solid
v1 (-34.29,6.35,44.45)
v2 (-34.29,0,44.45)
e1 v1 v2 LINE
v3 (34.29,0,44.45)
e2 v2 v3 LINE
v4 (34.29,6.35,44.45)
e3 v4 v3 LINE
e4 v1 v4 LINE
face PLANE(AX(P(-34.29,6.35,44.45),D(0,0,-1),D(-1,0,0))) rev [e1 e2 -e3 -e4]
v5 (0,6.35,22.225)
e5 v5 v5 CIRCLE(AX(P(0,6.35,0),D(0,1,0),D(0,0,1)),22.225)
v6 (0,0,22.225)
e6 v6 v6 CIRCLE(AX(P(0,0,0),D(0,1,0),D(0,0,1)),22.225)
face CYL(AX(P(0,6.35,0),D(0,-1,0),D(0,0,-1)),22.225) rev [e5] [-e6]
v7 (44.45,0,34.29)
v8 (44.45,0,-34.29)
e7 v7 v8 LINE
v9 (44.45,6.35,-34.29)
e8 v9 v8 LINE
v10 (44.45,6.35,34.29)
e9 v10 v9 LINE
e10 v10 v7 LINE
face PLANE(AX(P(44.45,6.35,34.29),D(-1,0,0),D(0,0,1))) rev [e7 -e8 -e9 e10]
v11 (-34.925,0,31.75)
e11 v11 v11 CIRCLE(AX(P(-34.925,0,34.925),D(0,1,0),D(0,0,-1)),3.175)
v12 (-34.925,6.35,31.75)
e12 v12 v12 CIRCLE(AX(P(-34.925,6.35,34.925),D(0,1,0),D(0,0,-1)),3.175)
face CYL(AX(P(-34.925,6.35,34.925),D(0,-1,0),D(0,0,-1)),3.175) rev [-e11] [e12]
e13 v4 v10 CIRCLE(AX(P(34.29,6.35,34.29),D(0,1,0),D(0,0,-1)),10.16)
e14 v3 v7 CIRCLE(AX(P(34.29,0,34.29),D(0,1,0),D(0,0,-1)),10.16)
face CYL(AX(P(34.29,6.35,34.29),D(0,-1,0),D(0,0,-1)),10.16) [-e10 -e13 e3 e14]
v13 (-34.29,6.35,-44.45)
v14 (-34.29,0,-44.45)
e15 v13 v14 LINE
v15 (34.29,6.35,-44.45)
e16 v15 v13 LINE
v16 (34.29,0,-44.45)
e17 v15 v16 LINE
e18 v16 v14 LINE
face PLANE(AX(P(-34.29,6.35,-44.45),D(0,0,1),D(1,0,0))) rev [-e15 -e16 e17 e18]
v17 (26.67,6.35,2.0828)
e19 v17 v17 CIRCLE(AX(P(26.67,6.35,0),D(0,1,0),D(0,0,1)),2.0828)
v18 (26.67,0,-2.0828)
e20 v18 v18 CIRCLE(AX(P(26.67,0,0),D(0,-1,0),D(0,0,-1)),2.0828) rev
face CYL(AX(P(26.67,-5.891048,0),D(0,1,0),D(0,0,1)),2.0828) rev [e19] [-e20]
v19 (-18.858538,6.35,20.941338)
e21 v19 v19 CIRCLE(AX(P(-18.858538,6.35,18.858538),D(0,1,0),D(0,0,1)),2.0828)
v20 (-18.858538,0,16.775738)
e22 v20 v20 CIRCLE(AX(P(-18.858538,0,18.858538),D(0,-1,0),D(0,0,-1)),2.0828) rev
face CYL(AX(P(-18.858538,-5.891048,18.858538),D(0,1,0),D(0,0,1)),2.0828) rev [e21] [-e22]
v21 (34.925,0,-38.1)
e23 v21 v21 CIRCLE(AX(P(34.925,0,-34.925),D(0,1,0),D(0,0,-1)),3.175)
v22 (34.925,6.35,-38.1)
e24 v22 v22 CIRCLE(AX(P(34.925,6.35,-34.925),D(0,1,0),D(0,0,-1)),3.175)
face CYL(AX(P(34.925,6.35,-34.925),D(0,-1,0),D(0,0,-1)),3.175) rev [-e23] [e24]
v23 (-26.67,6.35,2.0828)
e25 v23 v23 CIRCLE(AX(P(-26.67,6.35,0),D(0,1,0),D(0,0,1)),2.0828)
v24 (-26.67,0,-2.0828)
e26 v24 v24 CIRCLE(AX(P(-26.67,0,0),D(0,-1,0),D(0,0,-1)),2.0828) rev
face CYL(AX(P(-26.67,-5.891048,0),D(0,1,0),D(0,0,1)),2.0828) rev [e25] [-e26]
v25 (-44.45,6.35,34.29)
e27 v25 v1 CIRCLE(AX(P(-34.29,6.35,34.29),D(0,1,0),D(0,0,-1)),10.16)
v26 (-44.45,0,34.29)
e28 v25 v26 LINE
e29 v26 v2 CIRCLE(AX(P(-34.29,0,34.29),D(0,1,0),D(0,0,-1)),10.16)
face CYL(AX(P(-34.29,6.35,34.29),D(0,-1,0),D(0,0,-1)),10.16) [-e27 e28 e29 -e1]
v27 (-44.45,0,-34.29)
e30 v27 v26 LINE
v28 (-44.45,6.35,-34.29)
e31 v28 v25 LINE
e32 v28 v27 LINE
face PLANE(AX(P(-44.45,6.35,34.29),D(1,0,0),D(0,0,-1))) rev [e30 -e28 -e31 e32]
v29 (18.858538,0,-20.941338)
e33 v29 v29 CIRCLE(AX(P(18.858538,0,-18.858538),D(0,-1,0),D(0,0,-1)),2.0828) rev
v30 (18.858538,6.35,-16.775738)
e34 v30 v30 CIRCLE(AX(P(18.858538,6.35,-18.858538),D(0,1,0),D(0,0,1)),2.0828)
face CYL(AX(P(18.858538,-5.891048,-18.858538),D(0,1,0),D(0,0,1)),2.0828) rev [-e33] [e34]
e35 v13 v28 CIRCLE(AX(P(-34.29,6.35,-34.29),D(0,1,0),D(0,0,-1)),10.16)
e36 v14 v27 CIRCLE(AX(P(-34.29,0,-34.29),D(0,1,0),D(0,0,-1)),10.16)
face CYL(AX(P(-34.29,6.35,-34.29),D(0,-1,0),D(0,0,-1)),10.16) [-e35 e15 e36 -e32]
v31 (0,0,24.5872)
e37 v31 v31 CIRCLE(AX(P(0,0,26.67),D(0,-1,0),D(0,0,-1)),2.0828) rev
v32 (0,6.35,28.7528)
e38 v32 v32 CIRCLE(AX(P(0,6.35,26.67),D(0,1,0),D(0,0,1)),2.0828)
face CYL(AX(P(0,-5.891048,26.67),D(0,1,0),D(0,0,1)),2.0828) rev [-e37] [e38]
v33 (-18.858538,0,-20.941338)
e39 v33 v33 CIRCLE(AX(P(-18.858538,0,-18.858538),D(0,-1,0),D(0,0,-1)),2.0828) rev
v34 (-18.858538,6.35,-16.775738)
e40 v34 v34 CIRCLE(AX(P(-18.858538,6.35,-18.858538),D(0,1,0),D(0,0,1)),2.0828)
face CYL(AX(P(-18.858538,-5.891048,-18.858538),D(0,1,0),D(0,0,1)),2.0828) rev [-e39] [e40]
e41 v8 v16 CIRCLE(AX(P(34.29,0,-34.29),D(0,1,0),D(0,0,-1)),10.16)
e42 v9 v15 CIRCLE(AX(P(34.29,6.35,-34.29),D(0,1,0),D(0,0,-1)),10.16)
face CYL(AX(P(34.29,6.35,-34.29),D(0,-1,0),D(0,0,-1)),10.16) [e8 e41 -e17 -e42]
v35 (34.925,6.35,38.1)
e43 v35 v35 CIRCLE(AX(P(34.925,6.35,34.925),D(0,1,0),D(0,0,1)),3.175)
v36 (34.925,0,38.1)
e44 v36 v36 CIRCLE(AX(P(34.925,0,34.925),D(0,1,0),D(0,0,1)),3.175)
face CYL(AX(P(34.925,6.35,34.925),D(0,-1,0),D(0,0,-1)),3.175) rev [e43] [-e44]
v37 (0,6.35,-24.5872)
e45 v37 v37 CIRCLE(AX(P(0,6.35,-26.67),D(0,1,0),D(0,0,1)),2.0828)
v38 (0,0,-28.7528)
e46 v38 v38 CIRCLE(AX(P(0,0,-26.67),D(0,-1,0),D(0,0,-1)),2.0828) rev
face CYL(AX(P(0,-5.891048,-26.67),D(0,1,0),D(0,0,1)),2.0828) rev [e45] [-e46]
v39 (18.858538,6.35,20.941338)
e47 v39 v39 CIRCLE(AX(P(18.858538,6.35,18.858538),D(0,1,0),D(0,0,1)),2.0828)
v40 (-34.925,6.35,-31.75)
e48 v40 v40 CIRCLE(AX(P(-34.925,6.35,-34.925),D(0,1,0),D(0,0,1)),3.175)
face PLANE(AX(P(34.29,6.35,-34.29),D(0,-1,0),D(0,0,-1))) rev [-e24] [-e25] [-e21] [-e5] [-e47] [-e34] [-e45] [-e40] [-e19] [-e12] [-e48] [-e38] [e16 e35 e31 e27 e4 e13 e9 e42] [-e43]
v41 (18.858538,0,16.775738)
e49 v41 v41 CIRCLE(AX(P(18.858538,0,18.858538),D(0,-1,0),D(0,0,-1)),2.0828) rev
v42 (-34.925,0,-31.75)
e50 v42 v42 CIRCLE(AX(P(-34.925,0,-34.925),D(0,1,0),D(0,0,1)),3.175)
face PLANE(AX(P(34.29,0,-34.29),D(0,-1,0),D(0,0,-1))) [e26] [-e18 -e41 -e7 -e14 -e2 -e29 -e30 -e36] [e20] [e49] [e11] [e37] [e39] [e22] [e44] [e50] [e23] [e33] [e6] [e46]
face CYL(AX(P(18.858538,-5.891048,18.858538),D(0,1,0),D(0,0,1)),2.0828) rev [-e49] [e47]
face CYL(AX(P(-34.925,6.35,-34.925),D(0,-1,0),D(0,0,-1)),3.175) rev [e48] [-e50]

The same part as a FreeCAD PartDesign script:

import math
import FreeCAD as App
import Part
import Sketcher
from FreeCAD import Vector
Q = App.Units.Quantity

doc = App.newDocument("Part")
body = doc.addObject("PartDesign::Body", "Body")

# Sketch on XZ plane
sketch1 = body.newObject("Sketcher::SketchObject", "Sketch")
sketch1.AttachmentSupport = (doc.getObject("XZ_Plane"), [""])
sketch1.MapMode = "FlatFace"
sketch1.addGeometry(Part.LineSegment(Vector(-34.3, 44.5, 0), Vector(34.3, 44.5, 0)), False)
sketch1.addGeometry(Part.ArcOfCircle(Part.Circle(Vector(34.3, 34.3, 0), Vector(0, 0, 1), 10.2), math.radians(0), math.radians(90)), False)
sketch1.addGeometry(Part.LineSegment(Vector(44.5, 34.3, 0), Vector(44.5, -34.3, 0)), False)
sketch1.addGeometry(Part.ArcOfCircle(Part.Circle(Vector(34.3, -34.3, 0), Vector(0, 0, 1), 10.2), math.radians(-90), math.radians(0)), False)
sketch1.addGeometry(Part.LineSegment(Vector(34.3, -44.5, 0), Vector(-34.3, -44.5, 0)), False)
sketch1.addGeometry(Part.ArcOfCircle(Part.Circle(Vector(-34.3, -34.3, 0), Vector(0, 0, 1), 10.2), math.radians(180), math.radians(270)), False)
sketch1.addGeometry(Part.LineSegment(Vector(-44.5, -34.3, 0), Vector(-44.5, 34.3, 0)), False)
sketch1.addGeometry(Part.ArcOfCircle(Part.Circle(Vector(-34.3, 34.3, 0), Vector(0, 0, 1), 10.2), math.radians(90), math.radians(180)), False)
sketch1.addGeometry(Part.Circle(Vector(-34.9, 34.9, 0), Vector(0, 0, 1), 3.2), False)
sketch1.addGeometry(Part.Circle(Vector(34.9, 34.9, 0), Vector(0, 0, 1), 3.2), False)
sketch1.addGeometry(Part.Circle(Vector(-34.9, -34.9, 0), Vector(0, 0, 1), 3.2), False)
sketch1.addGeometry(Part.Circle(Vector(0, 0, 0), Vector(0, 0, 1), 22.2), False)
sketch1.addGeometry(Part.Circle(Vector(34.9, -34.9, 0), Vector(0, 0, 1), 3.2), False)
sketch1.addConstraint(Sketcher.Constraint("Tangent", 0, 2, 1, 2))
sketch1.addConstraint(Sketcher.Constraint("Tangent", 1, 1, 2, 1))
sketch1.addConstraint(Sketcher.Constraint("Tangent", 2, 2, 3, 2))
sketch1.addConstraint(Sketcher.Constraint("Tangent", 3, 1, 4, 1))
sketch1.addConstraint(Sketcher.Constraint("Tangent", 4, 2, 5, 2))
sketch1.addConstraint(Sketcher.Constraint("Tangent", 5, 1, 6, 1))
sketch1.addConstraint(Sketcher.Constraint("Tangent", 6, 2, 7, 2))
sketch1.addConstraint(Sketcher.Constraint("Tangent", 7, 1, 0, 1))
sketch1.addConstraint(Sketcher.Constraint("Horizontal", 0))
sketch1.addConstraint(Sketcher.Constraint("Vertical", 2))
sketch1.addConstraint(Sketcher.Constraint("Horizontal", 4))
sketch1.addConstraint(Sketcher.Constraint("Vertical", 6))
sketch1.addConstraint(Sketcher.Constraint("Coincident", 11, 3, -1, 1))
sketch1.addConstraint(Sketcher.Constraint("Equal", 1, 3))
sketch1.addConstraint(Sketcher.Constraint("Equal", 3, 5))
sketch1.addConstraint(Sketcher.Constraint("Equal", 5, 7))
sketch1.addConstraint(Sketcher.Constraint("Equal", 8, 9))
sketch1.addConstraint(Sketcher.Constraint("Equal", 9, 10))
sketch1.addConstraint(Sketcher.Constraint("Equal", 10, 12))
sketch1.addConstraint(Sketcher.Constraint("Symmetric", 1, 3, 5, 3, -1, 1))
sketch1.addConstraint(Sketcher.Constraint("Symmetric", 9, 3, 10, 3, -1, 1))
sketch1.addConstraint(Sketcher.Constraint("Symmetric", 8, 3, 12, 3, -1, 1))
sketch1.addConstraint(Sketcher.Constraint("Symmetric", 8, 3, 9, 3, -2))
sketch1.addConstraint(Sketcher.Constraint("Equal", 4, 2))
sketch1.addConstraint(Sketcher.Constraint("Radius", 1, Q("0.4 in")))
sketch1.addConstraint(Sketcher.Constraint("Diameter", 8, Q("0.25 in")))
sketch1.addConstraint(Sketcher.Constraint("Diameter", 11, Q("1.75 in")))
sketch1.addConstraint(Sketcher.Constraint("DistanceX", 0, 1, 0, 2, Q("2.7 in")))
sketch1.addConstraint(Sketcher.Constraint("DistanceX", 8, 3, 9, 3, Q("2.75 in")))
sketch1.addConstraint(Sketcher.Constraint("DistanceY", 10, 3, 8, 3, Q("2.75 in")))
pad1 = body.newObject("PartDesign::Pad", "Pad")
pad1.Profile = sketch1
pad1.Length = Q("0.25 in")
pad1.Reversed = True

# Sketch on XZ plane
sketch2 = body.newObject("Sketcher::SketchObject", "Sketch001")
sketch2.AttachmentSupport = (doc.getObject("XZ_Plane"), [""])
sketch2.MapMode = "FlatFace"
sketch2.AttachmentOffset = App.Placement(Vector(0, 0, -0.25 * 25.4), App.Rotation())
sketch2.addGeometry(Part.Circle(Vector(26.7, 0, 0), Vector(0, 0, 1), 2.1), False)
sketch2.addGeometry(Part.Circle(Vector(18.9, 18.9, 0), Vector(0, 0, 1), 2.1), False)
sketch2.addGeometry(Part.Circle(Vector(0, 26.7, 0), Vector(0, 0, 1), 2.1), False)
sketch2.addGeometry(Part.Circle(Vector(-18.9, 18.9, 0), Vector(0, 0, 1), 2.1), False)
sketch2.addGeometry(Part.Circle(Vector(-26.7, 0, 0), Vector(0, 0, 1), 2.1), False)
sketch2.addGeometry(Part.Circle(Vector(-18.9, -18.9, 0), Vector(0, 0, 1), 2.1), False)
sketch2.addGeometry(Part.Circle(Vector(0, -26.7, 0), Vector(0, 0, 1), 2.1), False)
sketch2.addGeometry(Part.Circle(Vector(18.9, -18.9, 0), Vector(0, 0, 1), 2.1), False)
sketch2.addConstraint(Sketcher.Constraint("Equal", 0, 1))
sketch2.addConstraint(Sketcher.Constraint("Equal", 1, 2))
sketch2.addConstraint(Sketcher.Constraint("Equal", 2, 3))
sketch2.addConstraint(Sketcher.Constraint("Equal", 3, 4))
sketch2.addConstraint(Sketcher.Constraint("Equal", 4, 5))
sketch2.addConstraint(Sketcher.Constraint("Equal", 5, 6))
sketch2.addConstraint(Sketcher.Constraint("Equal", 6, 7))
sketch2.addConstraint(Sketcher.Constraint("Symmetric", 0, 3, 4, 3, -1, 1))
sketch2.addConstraint(Sketcher.Constraint("Symmetric", 1, 3, 5, 3, -1, 1))
sketch2.addConstraint(Sketcher.Constraint("Symmetric", 2, 3, 6, 3, -1, 1))
sketch2.addConstraint(Sketcher.Constraint("Symmetric", 3, 3, 7, 3, -1, 1))
sketch2.addConstraint(Sketcher.Constraint("Symmetric", 1, 3, 3, 3, -2))
sketch2.addConstraint(Sketcher.Constraint("PointOnObject", 0, 3, -1))
sketch2.addConstraint(Sketcher.Constraint("PointOnObject", 2, 3, -2))
sketch2.addConstraint(Sketcher.Constraint("Diameter", 0, Q("0.164 in")))
sketch2.addConstraint(Sketcher.Constraint("DistanceX", 4, 3, 0, 3, Q("2.1 in")))
sketch2.addConstraint(Sketcher.Constraint("DistanceY", -1, 1, 2, 3, Q("1.05 in")))
sketch2.addConstraint(Sketcher.Constraint("DistanceX", -1, 1, 1, 3, Q("18.858538 mm")))
sketch2.addConstraint(Sketcher.Constraint("DistanceY", -1, 1, 1, 3, Q("18.858538 mm")))
pocket1 = body.newObject("PartDesign::Pocket", "Pocket")
pocket1.Profile = sketch2
pocket1.Length = Q("0.25 in")
pocket1.Reversed = True

doc.recompute()
